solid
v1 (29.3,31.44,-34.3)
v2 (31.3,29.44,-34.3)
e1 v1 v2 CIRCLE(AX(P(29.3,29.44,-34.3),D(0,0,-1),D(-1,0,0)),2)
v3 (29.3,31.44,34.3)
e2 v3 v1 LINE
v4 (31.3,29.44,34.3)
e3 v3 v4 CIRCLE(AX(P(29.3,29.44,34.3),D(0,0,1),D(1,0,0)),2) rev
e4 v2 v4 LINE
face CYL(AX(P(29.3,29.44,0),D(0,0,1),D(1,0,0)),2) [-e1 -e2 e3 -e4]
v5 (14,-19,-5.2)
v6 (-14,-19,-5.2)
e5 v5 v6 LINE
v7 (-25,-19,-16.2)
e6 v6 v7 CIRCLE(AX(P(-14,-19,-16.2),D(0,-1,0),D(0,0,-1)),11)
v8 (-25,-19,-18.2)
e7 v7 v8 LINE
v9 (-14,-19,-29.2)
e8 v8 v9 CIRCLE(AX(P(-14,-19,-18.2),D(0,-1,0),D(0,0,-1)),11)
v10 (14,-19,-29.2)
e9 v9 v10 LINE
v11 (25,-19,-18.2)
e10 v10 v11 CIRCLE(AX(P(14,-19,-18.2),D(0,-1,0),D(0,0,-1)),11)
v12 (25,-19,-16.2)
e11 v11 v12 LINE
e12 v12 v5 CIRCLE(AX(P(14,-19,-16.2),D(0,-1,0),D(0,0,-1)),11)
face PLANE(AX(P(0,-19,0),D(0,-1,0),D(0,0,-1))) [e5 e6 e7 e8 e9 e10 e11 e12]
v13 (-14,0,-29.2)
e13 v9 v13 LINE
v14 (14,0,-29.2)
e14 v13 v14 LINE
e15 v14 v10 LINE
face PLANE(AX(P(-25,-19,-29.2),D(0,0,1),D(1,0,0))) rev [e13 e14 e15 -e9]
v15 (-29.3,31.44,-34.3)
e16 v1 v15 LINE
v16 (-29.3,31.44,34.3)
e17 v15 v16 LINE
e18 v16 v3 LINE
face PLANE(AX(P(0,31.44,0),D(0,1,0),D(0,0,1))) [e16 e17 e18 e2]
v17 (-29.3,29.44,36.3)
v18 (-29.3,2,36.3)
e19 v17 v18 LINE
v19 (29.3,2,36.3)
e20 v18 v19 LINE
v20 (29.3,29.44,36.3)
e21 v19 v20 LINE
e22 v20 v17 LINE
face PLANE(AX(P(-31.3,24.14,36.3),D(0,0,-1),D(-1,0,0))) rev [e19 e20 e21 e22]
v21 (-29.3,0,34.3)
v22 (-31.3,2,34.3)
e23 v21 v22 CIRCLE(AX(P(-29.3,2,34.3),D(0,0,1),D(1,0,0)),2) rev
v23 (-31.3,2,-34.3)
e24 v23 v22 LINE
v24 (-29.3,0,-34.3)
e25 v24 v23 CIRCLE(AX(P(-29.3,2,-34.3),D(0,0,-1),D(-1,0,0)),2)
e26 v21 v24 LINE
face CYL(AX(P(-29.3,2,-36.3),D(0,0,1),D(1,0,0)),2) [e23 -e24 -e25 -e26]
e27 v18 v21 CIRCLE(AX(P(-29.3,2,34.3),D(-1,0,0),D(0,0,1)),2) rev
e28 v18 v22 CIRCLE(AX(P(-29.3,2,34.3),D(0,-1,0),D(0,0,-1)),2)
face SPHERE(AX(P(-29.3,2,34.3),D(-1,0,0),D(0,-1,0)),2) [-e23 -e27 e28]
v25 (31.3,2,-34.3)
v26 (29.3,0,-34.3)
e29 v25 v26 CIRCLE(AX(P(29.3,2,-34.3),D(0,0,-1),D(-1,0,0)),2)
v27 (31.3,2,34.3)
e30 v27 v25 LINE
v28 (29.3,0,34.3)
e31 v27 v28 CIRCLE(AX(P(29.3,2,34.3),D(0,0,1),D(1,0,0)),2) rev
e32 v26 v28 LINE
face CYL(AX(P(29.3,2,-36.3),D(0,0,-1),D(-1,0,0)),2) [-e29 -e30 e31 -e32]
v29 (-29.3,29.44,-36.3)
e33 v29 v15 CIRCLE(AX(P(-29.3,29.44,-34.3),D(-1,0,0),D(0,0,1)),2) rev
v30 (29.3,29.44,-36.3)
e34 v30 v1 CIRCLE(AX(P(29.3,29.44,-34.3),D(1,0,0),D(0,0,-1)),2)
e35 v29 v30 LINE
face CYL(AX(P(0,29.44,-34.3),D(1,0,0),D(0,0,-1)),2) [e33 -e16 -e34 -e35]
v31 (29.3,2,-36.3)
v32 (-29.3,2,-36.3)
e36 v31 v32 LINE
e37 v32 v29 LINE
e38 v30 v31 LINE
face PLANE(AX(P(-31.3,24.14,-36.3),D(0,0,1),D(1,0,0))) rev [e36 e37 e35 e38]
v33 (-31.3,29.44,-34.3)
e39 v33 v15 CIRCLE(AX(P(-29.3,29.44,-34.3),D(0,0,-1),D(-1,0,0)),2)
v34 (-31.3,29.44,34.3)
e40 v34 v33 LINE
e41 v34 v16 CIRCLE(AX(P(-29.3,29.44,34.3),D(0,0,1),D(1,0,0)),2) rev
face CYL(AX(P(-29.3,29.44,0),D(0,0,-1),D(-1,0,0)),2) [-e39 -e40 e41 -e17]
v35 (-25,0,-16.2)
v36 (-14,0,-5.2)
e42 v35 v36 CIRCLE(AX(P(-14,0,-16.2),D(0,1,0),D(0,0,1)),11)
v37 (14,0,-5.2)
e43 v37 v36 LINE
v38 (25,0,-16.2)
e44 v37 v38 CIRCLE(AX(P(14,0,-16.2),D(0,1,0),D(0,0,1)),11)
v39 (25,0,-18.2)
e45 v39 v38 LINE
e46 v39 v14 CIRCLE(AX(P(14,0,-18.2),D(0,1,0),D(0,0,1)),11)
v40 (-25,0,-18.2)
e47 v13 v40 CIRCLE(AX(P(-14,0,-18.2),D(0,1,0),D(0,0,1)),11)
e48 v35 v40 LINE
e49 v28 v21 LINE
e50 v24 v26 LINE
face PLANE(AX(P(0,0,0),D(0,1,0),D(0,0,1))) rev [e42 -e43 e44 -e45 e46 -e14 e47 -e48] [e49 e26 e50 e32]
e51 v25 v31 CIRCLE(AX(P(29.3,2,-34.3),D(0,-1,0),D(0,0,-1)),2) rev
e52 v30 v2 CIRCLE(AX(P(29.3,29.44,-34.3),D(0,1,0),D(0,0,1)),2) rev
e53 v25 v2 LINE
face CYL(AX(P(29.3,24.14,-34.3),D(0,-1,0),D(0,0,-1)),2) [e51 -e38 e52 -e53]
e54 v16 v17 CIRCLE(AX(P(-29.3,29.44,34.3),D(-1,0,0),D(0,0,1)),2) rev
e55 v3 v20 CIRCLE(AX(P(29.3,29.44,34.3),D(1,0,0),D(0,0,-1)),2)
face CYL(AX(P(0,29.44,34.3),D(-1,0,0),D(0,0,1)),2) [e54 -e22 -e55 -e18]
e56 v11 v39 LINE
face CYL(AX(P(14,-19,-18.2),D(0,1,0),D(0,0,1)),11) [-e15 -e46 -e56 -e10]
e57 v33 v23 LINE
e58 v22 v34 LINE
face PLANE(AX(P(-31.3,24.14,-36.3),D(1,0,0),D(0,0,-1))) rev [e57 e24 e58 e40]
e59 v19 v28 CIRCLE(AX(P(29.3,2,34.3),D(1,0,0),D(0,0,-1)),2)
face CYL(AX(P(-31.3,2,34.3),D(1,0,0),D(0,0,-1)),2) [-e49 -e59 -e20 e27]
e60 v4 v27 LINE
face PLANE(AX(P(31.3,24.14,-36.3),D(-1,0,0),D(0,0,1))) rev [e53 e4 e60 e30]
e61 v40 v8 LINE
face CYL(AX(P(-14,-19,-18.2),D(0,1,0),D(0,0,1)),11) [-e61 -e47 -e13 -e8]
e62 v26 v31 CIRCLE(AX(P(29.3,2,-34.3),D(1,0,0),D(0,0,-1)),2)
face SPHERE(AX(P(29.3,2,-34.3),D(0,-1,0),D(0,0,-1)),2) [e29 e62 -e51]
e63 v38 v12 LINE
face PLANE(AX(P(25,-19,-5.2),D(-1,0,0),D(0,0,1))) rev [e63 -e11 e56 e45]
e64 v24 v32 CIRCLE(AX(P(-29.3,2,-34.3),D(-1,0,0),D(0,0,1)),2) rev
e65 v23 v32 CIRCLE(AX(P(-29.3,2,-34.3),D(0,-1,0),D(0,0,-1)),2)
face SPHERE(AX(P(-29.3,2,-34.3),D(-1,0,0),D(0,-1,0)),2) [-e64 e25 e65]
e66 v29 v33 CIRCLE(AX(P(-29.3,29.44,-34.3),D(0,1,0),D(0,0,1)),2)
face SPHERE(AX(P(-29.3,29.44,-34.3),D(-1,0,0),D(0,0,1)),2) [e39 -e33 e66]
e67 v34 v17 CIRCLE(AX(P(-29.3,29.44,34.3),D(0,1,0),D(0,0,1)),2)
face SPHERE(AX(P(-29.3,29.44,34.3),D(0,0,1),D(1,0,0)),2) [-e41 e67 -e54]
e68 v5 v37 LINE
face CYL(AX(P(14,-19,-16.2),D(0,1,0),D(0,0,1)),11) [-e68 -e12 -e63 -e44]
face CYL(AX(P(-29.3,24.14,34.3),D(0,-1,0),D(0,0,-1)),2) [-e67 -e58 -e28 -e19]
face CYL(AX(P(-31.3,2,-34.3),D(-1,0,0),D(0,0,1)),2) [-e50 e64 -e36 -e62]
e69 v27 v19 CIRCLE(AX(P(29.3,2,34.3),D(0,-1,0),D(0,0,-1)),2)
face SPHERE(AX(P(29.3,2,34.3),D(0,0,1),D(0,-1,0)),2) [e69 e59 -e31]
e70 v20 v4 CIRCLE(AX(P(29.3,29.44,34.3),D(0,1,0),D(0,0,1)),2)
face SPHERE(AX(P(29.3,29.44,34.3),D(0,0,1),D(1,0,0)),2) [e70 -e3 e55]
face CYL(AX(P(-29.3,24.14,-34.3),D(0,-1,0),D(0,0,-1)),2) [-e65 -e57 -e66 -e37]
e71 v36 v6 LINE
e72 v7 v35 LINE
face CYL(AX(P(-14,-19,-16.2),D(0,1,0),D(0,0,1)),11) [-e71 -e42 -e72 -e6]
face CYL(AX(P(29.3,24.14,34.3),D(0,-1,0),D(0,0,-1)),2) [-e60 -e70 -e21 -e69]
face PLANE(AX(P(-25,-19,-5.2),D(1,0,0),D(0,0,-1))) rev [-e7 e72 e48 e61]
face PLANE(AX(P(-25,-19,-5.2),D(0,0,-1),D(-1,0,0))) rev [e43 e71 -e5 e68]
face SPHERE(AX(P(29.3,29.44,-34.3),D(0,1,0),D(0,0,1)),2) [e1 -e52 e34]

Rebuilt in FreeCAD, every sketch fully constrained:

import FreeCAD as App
import Part
import Sketcher

V = App.Vector
Q = App.Units.Quantity


def edges_at(feature, points):
    """Names of the edges that pass closest to the given points."""
    edges = feature.Shape.Edges
    near = lambda p: min(range(len(edges)), key=lambda i: edges[i].distToShape(Part.Vertex(*p))[0])
    return sorted({f"Edge{near(p) + 1}" for p in points})

doc = App.newDocument("Part")
body = doc.addObject("PartDesign::Body", "Body")

# Sketch on XZ plane
sketch1 = body.newObject("Sketcher::SketchObject", "Sketch")
sketch1.AttachmentSupport = (doc.getObject("XZ_Plane"), [""])
sketch1.MapMode = "FlatFace"
sketch1.addGeometry(Part.LineSegment(V(-31, -36, 0), V(-31, 36, 0)), False)
sketch1.addGeometry(Part.LineSegment(V(-31, 36, 0), V(31, 36, 0)), False)
sketch1.addGeometry(Part.LineSegment(V(31, 36, 0), V(31, -36, 0)), False)
sketch1.addGeometry(Part.LineSegment(V(31, -36, 0), V(-31, -36, 0)), False)
sketch1.addConstraint(Sketcher.Constraint("Coincident", 0, 2, 1, 1))
sketch1.addConstraint(Sketcher.Constraint("Coincident", 1, 2, 2, 1))
sketch1.addConstraint(Sketcher.Constraint("Coincident", 2, 2, 3, 1))
sketch1.addConstraint(Sketcher.Constraint("Coincident", 3, 2, 0, 1))
sketch1.addConstraint(Sketcher.Constraint("Vertical", 0))
sketch1.addConstraint(Sketcher.Constraint("Horizontal", 1))
sketch1.addConstraint(Sketcher.Constraint("Vertical", 2))
sketch1.addConstraint(Sketcher.Constraint("Horizontal", 3))
sketch1.addConstraint(Sketcher.Constraint("Symmetric", 0, 2, 2, 2, -1, 1))
sketch1.addConstraint(Sketcher.Constraint("DistanceX", 1, 1, 1, 2, Q("62.6 mm")))
sketch1.addConstraint(Sketcher.Constraint("DistanceY", 0, 1, 0, 2, Q("72.6 mm")))
pad1 = body.newObject("PartDesign::Pad", "Pad")
pad1.Profile = sketch1
pad1.Length = 24.14
pad1.Reversed = True

# Sketch on XZ plane
sketch2 = body.newObject("Sketcher::SketchObject", "Sketch001")
sketch2.AttachmentSupport = (doc.getObject("XZ_Plane"), [""])
sketch2.MapMode = "FlatFace"
sketch2.addGeometry(Part.LineSegment(V(-25, -5, 0), V(-25, -29, 0)), False)
sketch2.addGeometry(Part.LineSegment(V(-25, -29, 0), V(25, -29, 0)), False)
sketch2.addGeometry(Part.LineSegment(V(25, -29, 0), V(25, -5, 0)), False)
sketch2.addGeometry(Part.LineSegment(V(25, -5, 0), V(-25, -5, 0)), False)
sketch2.addConstraint(Sketcher.Constraint("Coincident", 0, 2, 1, 1))
sketch2.addConstraint(Sketcher.Constraint("Coincident", 1, 2, 2, 1))
sketch2.addConstraint(Sketcher.Constraint("Coincident", 2, 2, 3, 1))
sketch2.addConstraint(Sketcher.Constraint("Coincident", 3, 2, 0, 1))
sketch2.addConstraint(Sketcher.Constraint("Vertical", 0))
sketch2.addConstraint(Sketcher.Constraint("Horizontal", 1))
sketch2.addConstraint(Sketcher.Constraint("Vertical", 2))
sketch2.addConstraint(Sketcher.Constraint("Horizontal", 3))
sketch2.addConstraint(Sketcher.Constraint("DistanceX", 1, 1, 1, 2, Q("50 mm")))
sketch2.addConstraint(Sketcher.Constraint("DistanceY", 0, 2, 0, 1, Q("24 mm")))
sketch2.addConstraint(Sketcher.Constraint("DistanceX", 0, 2, -1, 1, Q("25 mm")))
sketch2.addConstraint(Sketcher.Constraint("DistanceY", 0, 2, -1, 1, Q("29.2 mm")))
pad2 = body.newObject("PartDesign::Pad", "Pad001")
pad2.Profile = sketch2
pad2.Length = 19

# Sketch on XZ plane
sketch3 = body.newObject("Sketcher::SketchObject", "Sketch002")
sketch3.AttachmentSupport = (doc.getObject("XZ_Plane"), [""])
sketch3.MapMode = "FlatFace"
sketch3.AttachmentOffset = App.Placement(V(0, 0, -24.14), App.Rotation())
sketch3.addGeometry(Part.LineSegment(V(-31, -36, 0), V(-31, 36, 0)), False)
sketch3.addGeometry(Part.LineSegment(V(-31, 36, 0), V(31, 36, 0)), False)
sketch3.addGeometry(Part.LineSegment(V(31, 36, 0), V(31, -36, 0)), False)
sketch3.addGeometry(Part.LineSegment(V(31, -36, 0), V(-31, -36, 0)), False)
sketch3.addConstraint(Sketcher.Constraint("Coincident", 0, 2, 1, 1))
sketch3.addConstraint(Sketcher.Constraint("Coincident", 1, 2, 2, 1))
sketch3.addConstraint(Sketcher.Constraint("Coincident", 2, 2, 3, 1))
sketch3.addConstraint(Sketcher.Constraint("Coincident", 3, 2, 0, 1))
sketch3.addConstraint(Sketcher.Constraint("Vertical", 0))
sketch3.addConstraint(Sketcher.Constraint("Horizontal", 1))
sketch3.addConstraint(Sketcher.Constraint("Vertical", 2))
sketch3.addConstraint(Sketcher.Constraint("Horizontal", 3))
sketch3.addConstraint(Sketcher.Constraint("Symmetric", 0, 2, 2, 2, -1, 1))
sketch3.addConstraint(Sketcher.Constraint("DistanceX", 1, 1, 1, 2, Q("62.6 mm")))
sketch3.addConstraint(Sketcher.Constraint("DistanceY", 0, 1, 0, 2, Q("72.6 mm")))
pad3 = body.newObject("PartDesign::Pad", "Pad002")
pad3.Profile = sketch3
pad3.Length = 7.3
pad3.Reversed = True
doc.recompute()

fillet = body.newObject("PartDesign::Fillet", "Fillet")
fillet.Base = (pad3, edges_at(pad3, [
    (0, 31.44, 36.3),
    (31.3, 31.44, 0),
    (0, 31.44, -36.3),
    (-31.3, 31.44, 0),
    (0, 0, 36.3),
    (-31.3, 0, 0),
    (0, 0, -36.3),
    (31.3, 0, 0),
    (31.3, 15.72, 36.3),
    (-31.3, 15.72, 36.3),
    (-31.3, 15.72, -36.3),
    (31.3, 15.72, -36.3),
]))
fillet.Radius = 2
doc.recompute()

fillet2 = body.newObject("PartDesign::Fillet", "Fillet001")
fillet2.Base = (fillet, edges_at(fillet, [
    (-25, -9.5, -5.2),
    (-25, -9.5, -29.2),
    (25, -9.5, -29.2),
    (25, -9.5, -5.2),
]))
fillet2.Radius = 11

doc.recompute()
